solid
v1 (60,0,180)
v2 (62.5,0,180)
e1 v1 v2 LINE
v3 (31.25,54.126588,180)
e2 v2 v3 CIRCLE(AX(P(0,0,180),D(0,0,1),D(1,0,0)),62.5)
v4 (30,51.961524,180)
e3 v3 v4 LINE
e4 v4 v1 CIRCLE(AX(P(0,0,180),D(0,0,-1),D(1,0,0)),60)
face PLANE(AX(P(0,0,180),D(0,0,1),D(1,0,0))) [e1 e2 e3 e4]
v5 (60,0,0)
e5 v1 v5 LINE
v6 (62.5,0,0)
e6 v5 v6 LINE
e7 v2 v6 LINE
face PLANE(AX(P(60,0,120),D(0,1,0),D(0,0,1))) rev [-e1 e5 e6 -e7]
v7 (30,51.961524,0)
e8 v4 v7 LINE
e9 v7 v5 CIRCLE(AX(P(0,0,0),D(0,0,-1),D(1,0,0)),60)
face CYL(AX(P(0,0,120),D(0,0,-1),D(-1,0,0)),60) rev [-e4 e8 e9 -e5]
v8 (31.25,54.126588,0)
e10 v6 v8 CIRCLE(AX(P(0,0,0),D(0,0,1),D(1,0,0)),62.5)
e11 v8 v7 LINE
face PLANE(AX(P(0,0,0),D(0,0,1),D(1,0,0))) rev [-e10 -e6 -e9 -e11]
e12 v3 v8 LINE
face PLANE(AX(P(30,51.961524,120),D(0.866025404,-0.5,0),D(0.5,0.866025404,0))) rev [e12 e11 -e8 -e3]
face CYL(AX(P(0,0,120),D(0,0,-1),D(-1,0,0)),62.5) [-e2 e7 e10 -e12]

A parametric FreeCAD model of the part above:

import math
import FreeCAD as App
import Part
import Sketcher

V = App.Vector
Q = App.Units.Quantity

doc = App.newDocument("Part")
params = doc.addObject("Spreadsheet::Sheet", "Params")
for row, (alias, value) in enumerate([
    ("sketch1_radius", "60 mm"),
    ("sketch1_radius2", "62.5 mm"),
    ("pad1_length", "120 mm"),
    ("sketch2_radius", "60 mm"),
    ("sketch2_radius2", "62.5 mm"),
    ("pad2_length", "60 mm"),
], start=1):
    params.set(f"A{row}", alias)
    params.set(f"B{row}", "=" + value)
    params.setAlias(f"B{row}", alias)

body = doc.addObject("PartDesign::Body", "Body")

# Sketch on XY plane
sketch1 = body.newObject("Sketcher::SketchObject", "Sketch")
sketch1.AttachmentSupport = (doc.getObject("XY_Plane"), [""])
sketch1.MapMode = "FlatFace"
sketch1.addGeometry([
    Part.LineSegment(V(31.2, 54.1, 0), V(30, 52, 0)),
    Part.ArcOfCircle(Part.Circle(V(0, 0, 0), V(0, 0, 1), 60), math.radians(0), math.radians(60)),
    Part.LineSegment(V(60, 0, 0), V(62.5, 0, 0)),
    Part.ArcOfCircle(Part.Circle(V(0, 0, 0), V(0, 0, 1), 62.5), math.radians(0), math.radians(60)),
], False)
sketch1.addConstraint([
    Sketcher.Constraint("Coincident", 0, 2, 1, 2),
    Sketcher.Constraint("Coincident", 1, 1, 2, 1),
    Sketcher.Constraint("Coincident", 2, 2, 3, 1),
    Sketcher.Constraint("Coincident", 3, 2, 0, 1),
    Sketcher.Constraint("Horizontal", 2),
    Sketcher.Constraint("Coincident", 1, 3, -1, 1),
    Sketcher.Constraint("Coincident", 3, 3, -1, 1),
    Sketcher.Constraint("PointOnObject", 1, 1, -1),
    Sketcher.Constraint("Radius", 1, Q("60 mm")),
    Sketcher.Constraint("Radius", 3, Q("62.5 mm")),
    Sketcher.Constraint("Angle", 0, Q("-120 deg")),
    Sketcher.Constraint("DistanceX", -1, 1, 0, 2, Q("30 mm")),
])
sketch1.setExpression("Constraints[8]", "Params.sketch1_radius")
sketch1.setExpression("Constraints[9]", "Params.sketch1_radius2")
pad1 = body.newObject("PartDesign::Pad", "Pad")
pad1.Profile = sketch1
pad1.setExpression("Length", "Params.pad1_length")

# Sketch on XY plane
sketch2 = body.newObject("Sketcher::SketchObject", "Sketch001")
sketch2.AttachmentSupport = (doc.getObject("XY_Plane"), [""])
sketch2.MapMode = "FlatFace"
sketch2.AttachmentOffset = App.Placement(V(0, 0, 120), App.Rotation())
sketch2.addGeometry([
    Part.LineSegment(V(60, 0, 0), V(62.5, 0, 0)),
    Part.ArcOfCircle(Part.Circle(V(0, 0, 0), V(0, 0, 1), 62.5), math.radians(0), math.radians(60)),
    Part.LineSegment(V(31.2, 54.1, 0), V(30, 52, 0)),
    Part.ArcOfCircle(Part.Circle(V(0, 0, 0), V(0, 0, 1), 60), math.radians(0), math.radians(60)),
], False)
sketch2.addConstraint([
    Sketcher.Constraint("Coincident", 0, 2, 1, 1),
    Sketcher.Constraint("Coincident", 1, 2, 2, 1),
    Sketcher.Constraint("Coincident", 2, 2, 3, 2),
    Sketcher.Constraint("Coincident", 3, 1, 0, 1),
    Sketcher.Constraint("Horizontal", 0),
    Sketcher.Constraint("Coincident", 1, 3, -1, 1),
    Sketcher.Constraint("Coincident", 3, 3, -1, 1),
    Sketcher.Constraint("PointOnObject", 0, 2, -1),
    Sketcher.Constraint("Radius", 3, Q("60 mm")),
    Sketcher.Constraint("Radius", 1, Q("62.5 mm")),
    Sketcher.Constraint("Angle", 2, Q("-120 deg")),
    Sketcher.Constraint("DistanceX", -1, 1, 2, 2, Q("30 mm")),
])
sketch2.setExpression("Constraints[8]", "Params.sketch2_radius")
sketch2.setExpression("Constraints[9]", "Params.sketch2_radius2")
pad2 = body.newObject("PartDesign::Pad", "Pad001")
pad2.Profile = sketch2
pad2.setExpression("Length", "Params.pad2_length")

doc.recompute()
